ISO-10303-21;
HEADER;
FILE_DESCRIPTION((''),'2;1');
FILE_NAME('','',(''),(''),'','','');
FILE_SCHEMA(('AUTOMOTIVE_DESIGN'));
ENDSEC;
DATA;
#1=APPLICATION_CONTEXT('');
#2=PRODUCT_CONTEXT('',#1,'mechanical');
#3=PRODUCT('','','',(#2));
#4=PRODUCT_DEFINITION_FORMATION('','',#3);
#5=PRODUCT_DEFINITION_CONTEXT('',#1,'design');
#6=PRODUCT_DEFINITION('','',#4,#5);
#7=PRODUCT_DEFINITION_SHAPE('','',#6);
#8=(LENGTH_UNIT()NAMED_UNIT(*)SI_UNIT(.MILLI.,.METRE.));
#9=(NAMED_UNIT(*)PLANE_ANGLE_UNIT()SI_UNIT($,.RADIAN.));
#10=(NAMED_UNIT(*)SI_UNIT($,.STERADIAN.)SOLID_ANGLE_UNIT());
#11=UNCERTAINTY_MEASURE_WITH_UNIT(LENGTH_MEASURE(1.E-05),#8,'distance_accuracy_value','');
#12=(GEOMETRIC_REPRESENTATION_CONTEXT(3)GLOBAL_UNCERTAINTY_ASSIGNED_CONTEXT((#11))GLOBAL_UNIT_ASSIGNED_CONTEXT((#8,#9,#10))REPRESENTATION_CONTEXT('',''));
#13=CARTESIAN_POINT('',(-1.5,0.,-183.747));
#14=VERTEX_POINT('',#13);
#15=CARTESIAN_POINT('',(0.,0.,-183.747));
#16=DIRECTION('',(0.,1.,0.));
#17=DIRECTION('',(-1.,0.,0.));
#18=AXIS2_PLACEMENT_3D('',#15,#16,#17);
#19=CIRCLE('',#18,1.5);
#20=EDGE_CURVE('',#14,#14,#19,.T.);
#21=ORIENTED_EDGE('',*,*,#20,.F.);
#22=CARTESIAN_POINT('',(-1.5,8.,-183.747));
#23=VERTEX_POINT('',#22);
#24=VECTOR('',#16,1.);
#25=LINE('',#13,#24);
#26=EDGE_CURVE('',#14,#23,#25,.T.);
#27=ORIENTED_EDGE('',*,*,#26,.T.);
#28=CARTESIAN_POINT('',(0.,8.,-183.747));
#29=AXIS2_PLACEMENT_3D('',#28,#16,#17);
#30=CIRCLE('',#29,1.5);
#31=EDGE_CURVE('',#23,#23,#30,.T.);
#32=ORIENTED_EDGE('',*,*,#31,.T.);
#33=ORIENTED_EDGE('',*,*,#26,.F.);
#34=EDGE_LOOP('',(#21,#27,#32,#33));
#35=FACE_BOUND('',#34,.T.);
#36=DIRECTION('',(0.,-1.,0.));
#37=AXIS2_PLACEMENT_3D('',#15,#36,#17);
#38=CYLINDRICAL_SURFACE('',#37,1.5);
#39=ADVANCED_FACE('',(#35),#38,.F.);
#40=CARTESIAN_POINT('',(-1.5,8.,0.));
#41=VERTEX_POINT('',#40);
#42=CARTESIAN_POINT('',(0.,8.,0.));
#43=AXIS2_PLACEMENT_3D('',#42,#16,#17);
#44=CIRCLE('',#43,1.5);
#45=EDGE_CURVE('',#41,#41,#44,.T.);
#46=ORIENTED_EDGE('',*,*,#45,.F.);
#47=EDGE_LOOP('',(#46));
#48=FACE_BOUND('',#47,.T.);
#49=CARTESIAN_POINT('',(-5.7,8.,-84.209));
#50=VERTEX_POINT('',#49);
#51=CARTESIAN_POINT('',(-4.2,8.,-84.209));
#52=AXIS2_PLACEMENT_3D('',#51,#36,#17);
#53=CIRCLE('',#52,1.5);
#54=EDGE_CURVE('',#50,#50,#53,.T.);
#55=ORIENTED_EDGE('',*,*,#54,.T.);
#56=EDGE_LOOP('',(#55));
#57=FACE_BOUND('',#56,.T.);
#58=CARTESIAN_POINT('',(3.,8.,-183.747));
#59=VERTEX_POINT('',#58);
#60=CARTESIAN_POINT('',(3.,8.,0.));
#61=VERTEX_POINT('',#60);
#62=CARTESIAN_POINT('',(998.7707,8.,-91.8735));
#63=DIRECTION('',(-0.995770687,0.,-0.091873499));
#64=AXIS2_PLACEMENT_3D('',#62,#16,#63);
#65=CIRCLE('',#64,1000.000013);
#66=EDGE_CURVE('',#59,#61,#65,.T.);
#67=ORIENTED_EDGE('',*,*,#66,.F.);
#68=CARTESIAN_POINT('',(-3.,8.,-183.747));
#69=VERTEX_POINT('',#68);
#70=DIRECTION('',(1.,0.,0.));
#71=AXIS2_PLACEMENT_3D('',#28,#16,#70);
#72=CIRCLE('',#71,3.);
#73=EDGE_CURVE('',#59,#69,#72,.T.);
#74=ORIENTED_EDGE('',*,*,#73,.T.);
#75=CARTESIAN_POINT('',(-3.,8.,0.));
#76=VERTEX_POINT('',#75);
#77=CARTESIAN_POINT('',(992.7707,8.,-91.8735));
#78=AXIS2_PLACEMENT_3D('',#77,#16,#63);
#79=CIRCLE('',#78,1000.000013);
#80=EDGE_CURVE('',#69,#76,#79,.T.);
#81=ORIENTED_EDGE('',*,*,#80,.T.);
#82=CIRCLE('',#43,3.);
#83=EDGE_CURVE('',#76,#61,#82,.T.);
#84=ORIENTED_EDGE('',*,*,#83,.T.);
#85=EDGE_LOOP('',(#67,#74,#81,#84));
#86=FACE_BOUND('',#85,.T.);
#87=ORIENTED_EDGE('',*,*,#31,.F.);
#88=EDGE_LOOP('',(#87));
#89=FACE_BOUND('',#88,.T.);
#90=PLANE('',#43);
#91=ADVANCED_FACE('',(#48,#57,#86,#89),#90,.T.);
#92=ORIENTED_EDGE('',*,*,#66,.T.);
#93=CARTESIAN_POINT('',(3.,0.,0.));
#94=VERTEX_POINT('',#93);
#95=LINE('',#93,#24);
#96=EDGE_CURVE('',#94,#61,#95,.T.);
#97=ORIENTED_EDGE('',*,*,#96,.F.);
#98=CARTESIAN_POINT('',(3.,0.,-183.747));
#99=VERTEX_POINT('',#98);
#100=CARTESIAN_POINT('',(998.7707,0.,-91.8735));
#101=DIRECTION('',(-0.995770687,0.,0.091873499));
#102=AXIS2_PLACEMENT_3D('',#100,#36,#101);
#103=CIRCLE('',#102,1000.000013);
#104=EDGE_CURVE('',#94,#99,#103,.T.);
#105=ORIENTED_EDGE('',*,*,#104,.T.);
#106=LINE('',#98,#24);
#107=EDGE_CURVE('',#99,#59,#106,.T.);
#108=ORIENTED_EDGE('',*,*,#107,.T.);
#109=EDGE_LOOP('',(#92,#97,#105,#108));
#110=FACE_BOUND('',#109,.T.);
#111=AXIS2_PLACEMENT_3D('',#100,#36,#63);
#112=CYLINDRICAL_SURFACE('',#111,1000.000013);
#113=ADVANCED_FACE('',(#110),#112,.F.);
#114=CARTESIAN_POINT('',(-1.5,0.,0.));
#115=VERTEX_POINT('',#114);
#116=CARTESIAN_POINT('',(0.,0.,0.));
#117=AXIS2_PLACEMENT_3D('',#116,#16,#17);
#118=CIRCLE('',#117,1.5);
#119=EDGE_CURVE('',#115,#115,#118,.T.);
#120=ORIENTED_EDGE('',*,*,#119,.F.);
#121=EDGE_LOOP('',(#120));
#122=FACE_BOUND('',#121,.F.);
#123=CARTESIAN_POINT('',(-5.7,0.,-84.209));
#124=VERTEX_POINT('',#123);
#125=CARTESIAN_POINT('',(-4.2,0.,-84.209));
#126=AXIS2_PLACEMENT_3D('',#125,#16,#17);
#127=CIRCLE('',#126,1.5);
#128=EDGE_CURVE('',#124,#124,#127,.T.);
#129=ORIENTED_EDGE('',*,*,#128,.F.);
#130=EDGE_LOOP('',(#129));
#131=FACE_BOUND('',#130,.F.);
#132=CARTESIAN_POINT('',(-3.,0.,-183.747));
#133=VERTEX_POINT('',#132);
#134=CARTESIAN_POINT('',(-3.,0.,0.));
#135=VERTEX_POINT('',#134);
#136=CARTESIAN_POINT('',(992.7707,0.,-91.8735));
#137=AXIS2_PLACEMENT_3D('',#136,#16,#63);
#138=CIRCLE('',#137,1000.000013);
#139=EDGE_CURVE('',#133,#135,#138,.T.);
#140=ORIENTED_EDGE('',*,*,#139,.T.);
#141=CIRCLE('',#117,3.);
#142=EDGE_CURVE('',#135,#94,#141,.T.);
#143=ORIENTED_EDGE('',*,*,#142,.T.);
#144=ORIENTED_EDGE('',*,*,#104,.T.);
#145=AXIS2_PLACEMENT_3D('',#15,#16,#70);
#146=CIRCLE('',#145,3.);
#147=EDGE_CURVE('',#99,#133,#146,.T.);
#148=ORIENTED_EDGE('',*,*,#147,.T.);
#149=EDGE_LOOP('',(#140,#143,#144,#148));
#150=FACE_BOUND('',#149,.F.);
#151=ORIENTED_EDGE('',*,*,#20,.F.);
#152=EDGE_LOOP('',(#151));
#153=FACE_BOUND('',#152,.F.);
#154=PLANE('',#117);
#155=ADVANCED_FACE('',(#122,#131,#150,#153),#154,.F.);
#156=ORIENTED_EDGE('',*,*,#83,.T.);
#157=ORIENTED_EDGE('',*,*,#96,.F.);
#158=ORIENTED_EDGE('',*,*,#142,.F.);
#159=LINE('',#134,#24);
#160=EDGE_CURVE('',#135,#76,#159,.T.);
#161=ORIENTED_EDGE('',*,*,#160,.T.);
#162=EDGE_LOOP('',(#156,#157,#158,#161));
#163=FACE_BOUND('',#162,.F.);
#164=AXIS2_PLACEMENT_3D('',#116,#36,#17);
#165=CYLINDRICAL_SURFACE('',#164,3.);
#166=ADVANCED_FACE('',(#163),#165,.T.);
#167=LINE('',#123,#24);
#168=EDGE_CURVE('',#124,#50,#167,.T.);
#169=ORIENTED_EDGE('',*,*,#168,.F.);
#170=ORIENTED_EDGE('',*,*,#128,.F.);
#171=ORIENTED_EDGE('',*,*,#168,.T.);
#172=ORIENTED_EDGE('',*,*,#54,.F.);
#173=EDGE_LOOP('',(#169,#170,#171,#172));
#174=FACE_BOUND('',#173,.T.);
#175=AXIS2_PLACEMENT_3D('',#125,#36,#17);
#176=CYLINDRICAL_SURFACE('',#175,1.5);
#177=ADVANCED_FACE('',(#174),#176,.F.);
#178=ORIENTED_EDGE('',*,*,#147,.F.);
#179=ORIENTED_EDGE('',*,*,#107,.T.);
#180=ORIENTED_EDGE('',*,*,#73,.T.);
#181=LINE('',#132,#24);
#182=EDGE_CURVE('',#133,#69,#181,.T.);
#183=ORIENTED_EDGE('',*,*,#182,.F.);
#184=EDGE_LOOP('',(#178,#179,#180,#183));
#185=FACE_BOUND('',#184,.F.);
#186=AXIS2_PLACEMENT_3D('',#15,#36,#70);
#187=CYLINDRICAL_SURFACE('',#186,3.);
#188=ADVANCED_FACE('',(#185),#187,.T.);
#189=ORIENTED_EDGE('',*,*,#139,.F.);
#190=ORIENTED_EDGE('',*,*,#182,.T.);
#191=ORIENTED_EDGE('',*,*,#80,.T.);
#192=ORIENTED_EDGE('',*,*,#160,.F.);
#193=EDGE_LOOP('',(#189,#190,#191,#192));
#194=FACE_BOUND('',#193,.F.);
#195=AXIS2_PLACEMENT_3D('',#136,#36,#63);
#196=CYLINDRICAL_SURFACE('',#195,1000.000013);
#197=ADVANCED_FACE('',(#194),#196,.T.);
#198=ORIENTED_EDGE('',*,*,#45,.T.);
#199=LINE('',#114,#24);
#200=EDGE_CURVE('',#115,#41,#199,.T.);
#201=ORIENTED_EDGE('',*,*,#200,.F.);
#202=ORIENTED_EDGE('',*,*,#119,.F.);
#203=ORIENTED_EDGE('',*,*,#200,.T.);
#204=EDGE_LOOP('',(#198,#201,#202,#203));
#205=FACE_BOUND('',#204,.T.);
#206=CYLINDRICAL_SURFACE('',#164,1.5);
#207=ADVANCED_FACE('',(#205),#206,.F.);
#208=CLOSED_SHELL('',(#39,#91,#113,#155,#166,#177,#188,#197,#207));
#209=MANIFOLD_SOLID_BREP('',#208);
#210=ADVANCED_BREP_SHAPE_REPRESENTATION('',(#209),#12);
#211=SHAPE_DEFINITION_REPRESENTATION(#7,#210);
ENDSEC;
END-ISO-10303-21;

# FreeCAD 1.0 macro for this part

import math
import FreeCAD as App
import Part
import Sketcher

V = App.Vector
Q = App.Units.Quantity

doc = App.newDocument("Part")
body = doc.addObject("PartDesign::Body", "Body")

# Sketch on XZ plane
sketch1 = body.newObject("Sketcher::SketchObject", "Sketch")
sketch1.AttachmentSupport = (doc.getObject("XZ_Plane"), [""])
sketch1.MapMode = "FlatFace"
sketch1.addGeometry(Part.ArcOfCircle(Part.Circle(V(0, 0, 0), V(0, 0, 1), 3), math.radians(0), math.radians(180)), False)
sketch1.addGeometry(Part.ArcOfCircle(Part.Circle(V(998.7707, -91.8735, 0), V(0, 0, 1), 1000.000013), math.radians(174.728603), math.radians(185.271397)), False)
sketch1.addGeometry(Part.ArcOfCircle(Part.Circle(V(0, -183.747, 0), V(0, 0, 1), 3), math.radians(180), math.radians(360)), False)
sketch1.addGeometry(Part.ArcOfCircle(Part.Circle(V(992.7707, -91.8735, 0), V(0, 0, 1), 1000.000013), math.radians(174.728603), math.radians(185.271397)), False)
sketch1.addGeometry(Part.Circle(V(-4.2, -84.209, 0), V(0, 0, 1), 1.5), False)
sketch1.addGeometry(Part.Circle(V(0, -183.747, 0), V(0, 0, 1), 1.5), False)
sketch1.addGeometry(Part.Circle(V(0, 0, 0), V(0, 0, 1), 1.5), False)
sketch1.addConstraint(Sketcher.Constraint("Coincident", 0, 1, 1, 1))
sketch1.addConstraint(Sketcher.Constraint("Coincident", 1, 2, 2, 2))
sketch1.addConstraint(Sketcher.Constraint("Coincident", 2, 1, 3, 2))
sketch1.addConstraint(Sketcher.Constraint("Coincident", 3, 1, 0, 2))
sketch1.addConstraint(Sketcher.Constraint("Coincident", 0, 3, -1, 1))
sketch1.addConstraint(Sketcher.Constraint("Coincident", 6, 3, -1, 1))
sketch1.addConstraint(Sketcher.Constraint("Coincident", 5, 3, 2, 3))
sketch1.addConstraint(Sketcher.Constraint("Equal", 0, 2))
sketch1.addConstraint(Sketcher.Constraint("Equal", 1, 3))
sketch1.addConstraint(Sketcher.Constraint("Equal", 4, 5))
sketch1.addConstraint(Sketcher.Constraint("Equal", 5, 6))
sketch1.addConstraint(Sketcher.Constraint("Symmetric", 1, 2, 2, 1, -2))
sketch1.addConstraint(Sketcher.Constraint("PointOnObject", 0, 1, -1))
sketch1.addConstraint(Sketcher.Constraint("Horizontal", 1, 3, 3, 3))
sketch1.addConstraint(Sketcher.Constraint("Diameter", 4, Q("3 mm")))
sketch1.addConstraint(Sketcher.Constraint("Radius", 0, Q("3 mm")))
sketch1.addConstraint(Sketcher.Constraint("Radius", 1, Q("1000 mm")))
sketch1.addConstraint(Sketcher.Constraint("DistanceX", 4, 3, -1, 1, Q("4.2 mm")))
sketch1.addConstraint(Sketcher.Constraint("DistanceY", 2, 3, -1, 1, Q("183.747 mm")))
sketch1.addConstraint(Sketcher.Constraint("DistanceY", 2, 1, -1, 1, Q("183.747 mm")))
sketch1.addConstraint(Sketcher.Constraint("DistanceY", 4, 3, -1, 1, Q("84.209 mm")))
pad1 = body.newObject("PartDesign::Pad", "Pad")
pad1.Profile = sketch1
pad1.Length = 8
pad1.Reversed = True

doc.recompute()
